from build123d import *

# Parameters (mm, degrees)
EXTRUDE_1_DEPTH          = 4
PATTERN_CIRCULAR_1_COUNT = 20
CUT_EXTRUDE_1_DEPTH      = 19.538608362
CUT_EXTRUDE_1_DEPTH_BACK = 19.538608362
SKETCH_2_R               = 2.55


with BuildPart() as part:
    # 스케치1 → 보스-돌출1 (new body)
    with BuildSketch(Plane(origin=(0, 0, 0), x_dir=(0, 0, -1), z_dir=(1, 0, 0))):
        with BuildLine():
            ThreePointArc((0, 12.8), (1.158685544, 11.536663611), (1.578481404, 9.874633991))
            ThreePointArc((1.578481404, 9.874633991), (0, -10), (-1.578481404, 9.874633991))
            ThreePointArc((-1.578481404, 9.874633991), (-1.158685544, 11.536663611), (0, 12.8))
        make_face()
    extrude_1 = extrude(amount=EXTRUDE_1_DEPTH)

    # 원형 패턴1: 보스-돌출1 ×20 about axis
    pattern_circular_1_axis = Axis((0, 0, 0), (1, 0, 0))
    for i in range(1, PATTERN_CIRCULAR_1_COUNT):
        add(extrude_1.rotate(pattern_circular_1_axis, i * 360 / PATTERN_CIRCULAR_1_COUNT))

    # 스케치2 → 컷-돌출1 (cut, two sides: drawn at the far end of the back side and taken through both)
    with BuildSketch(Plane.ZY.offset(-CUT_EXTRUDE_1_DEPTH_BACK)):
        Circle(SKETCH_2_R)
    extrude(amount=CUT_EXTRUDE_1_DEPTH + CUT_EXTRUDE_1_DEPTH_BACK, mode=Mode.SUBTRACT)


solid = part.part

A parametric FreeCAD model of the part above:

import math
import FreeCAD as App
import Part
import Sketcher

V = App.Vector

doc = App.newDocument("Part")
params = doc.addObject("Spreadsheet::Sheet", "Params")
for row, (alias, value) in enumerate([
    ("sketch1_radius", "10 mm"),
    ("sketch1_radius2", "3.5 mm"),
    ("pad1_length", "4 mm"),
    ("sketch2_diameter", "5.1 mm"),
], start=1):
    params.set(f"A{row}", alias)
    params.set(f"B{row}", "=" + value)
    params.setAlias(f"B{row}", alias)

body = doc.addObject("PartDesign::Body", "Body")

# Sketch on YZ plane
sketch1 = doc.addObject("Sketcher::SketchObject", "Sketch")
body.addObject(sketch1)
sketch1.AttachmentSupport = (doc.YZ_Plane, [""])
sketch1.MapMode = "FlatFace"
sketch1.addGeometry([
    Part.ArcOfCircle(Part.Circle(V(9.874634, 1.921519, 0), V(0, 0, 1), 3.5), math.radians(-90), math.radians(-33.2988)),
    Part.ArcOfCircle(Part.Circle(V(9.874634, -1.921519, 0), V(0, 0, 1), 3.5), math.radians(33.2988), math.radians(90)),
    Part.ArcOfCircle(Part.Circle(V(0, 0, 0), V(0, 0, 1), 10), math.radians(9.082017), math.radians(350.917983)),
], False)
sketch1.addConstraint([
    Sketcher.Constraint("Coincident", 0, 2, 1, 1),
    Sketcher.Constraint("Coincident", 1, 2, 2, 1),
    Sketcher.Constraint("Coincident", 2, 2, 0, 1),
    Sketcher.Constraint("Coincident", 2, 3, -1, 1),
    Sketcher.Constraint("Equal", 0, 1),
    Sketcher.Constraint("Symmetric", 0, 3, 1, 3, -1),
    Sketcher.Constraint("Vertical", 0, 3, 1, 2),
    Sketcher.Constraint("Radius", 2, 10.0),
    Sketcher.Constraint("Radius", 0, 3.5),
    Sketcher.Constraint("DistanceX", -1, 1, 0, 2, 12.8),
])
sketch1.setExpression("Constraints[7]", "Params.sketch1_radius")
sketch1.setExpression("Constraints[8]", "Params.sketch1_radius2")
pad1 = doc.addObject("PartDesign::Pad", "Pad")
body.addObject(pad1)
pad1.Profile = sketch1
pad1.setExpression("Length", "Params.pad1_length")
doc.recompute()

polarpattern = doc.addObject("PartDesign::PolarPattern", "PolarPattern")
body.addObject(polarpattern)
polarpattern.Originals = [pad1]
polarpattern.Axis = (doc.X_Axis, [""])
polarpattern.Angle = 360
polarpattern.Occurrences = 20
body.Tip = polarpattern

# Sketch on YZ plane
sketch2 = doc.addObject("Sketcher::SketchObject", "Sketch001")
body.addObject(sketch2)
sketch2.AttachmentSupport = (doc.YZ_Plane, [""])
sketch2.MapMode = "FlatFace"
sketch2.addGeometry(Part.Circle(V(0, 0, 0), V(0, 0, 1), 2.55), False)
sketch2.addConstraint([
    Sketcher.Constraint("Coincident", 0, 3, -1, 1),
    Sketcher.Constraint("Diameter", 0, 5.1),
])
sketch2.setExpression("Constraints[1]", "Params.sketch2_diameter")
pocket1 = doc.addObject("PartDesign::Pocket", "Pocket")
body.addObject(pocket1)
pocket1.Profile = sketch2
pocket1.Type = "ThroughAll"
pocket1.Midplane = True

doc.recompute()
